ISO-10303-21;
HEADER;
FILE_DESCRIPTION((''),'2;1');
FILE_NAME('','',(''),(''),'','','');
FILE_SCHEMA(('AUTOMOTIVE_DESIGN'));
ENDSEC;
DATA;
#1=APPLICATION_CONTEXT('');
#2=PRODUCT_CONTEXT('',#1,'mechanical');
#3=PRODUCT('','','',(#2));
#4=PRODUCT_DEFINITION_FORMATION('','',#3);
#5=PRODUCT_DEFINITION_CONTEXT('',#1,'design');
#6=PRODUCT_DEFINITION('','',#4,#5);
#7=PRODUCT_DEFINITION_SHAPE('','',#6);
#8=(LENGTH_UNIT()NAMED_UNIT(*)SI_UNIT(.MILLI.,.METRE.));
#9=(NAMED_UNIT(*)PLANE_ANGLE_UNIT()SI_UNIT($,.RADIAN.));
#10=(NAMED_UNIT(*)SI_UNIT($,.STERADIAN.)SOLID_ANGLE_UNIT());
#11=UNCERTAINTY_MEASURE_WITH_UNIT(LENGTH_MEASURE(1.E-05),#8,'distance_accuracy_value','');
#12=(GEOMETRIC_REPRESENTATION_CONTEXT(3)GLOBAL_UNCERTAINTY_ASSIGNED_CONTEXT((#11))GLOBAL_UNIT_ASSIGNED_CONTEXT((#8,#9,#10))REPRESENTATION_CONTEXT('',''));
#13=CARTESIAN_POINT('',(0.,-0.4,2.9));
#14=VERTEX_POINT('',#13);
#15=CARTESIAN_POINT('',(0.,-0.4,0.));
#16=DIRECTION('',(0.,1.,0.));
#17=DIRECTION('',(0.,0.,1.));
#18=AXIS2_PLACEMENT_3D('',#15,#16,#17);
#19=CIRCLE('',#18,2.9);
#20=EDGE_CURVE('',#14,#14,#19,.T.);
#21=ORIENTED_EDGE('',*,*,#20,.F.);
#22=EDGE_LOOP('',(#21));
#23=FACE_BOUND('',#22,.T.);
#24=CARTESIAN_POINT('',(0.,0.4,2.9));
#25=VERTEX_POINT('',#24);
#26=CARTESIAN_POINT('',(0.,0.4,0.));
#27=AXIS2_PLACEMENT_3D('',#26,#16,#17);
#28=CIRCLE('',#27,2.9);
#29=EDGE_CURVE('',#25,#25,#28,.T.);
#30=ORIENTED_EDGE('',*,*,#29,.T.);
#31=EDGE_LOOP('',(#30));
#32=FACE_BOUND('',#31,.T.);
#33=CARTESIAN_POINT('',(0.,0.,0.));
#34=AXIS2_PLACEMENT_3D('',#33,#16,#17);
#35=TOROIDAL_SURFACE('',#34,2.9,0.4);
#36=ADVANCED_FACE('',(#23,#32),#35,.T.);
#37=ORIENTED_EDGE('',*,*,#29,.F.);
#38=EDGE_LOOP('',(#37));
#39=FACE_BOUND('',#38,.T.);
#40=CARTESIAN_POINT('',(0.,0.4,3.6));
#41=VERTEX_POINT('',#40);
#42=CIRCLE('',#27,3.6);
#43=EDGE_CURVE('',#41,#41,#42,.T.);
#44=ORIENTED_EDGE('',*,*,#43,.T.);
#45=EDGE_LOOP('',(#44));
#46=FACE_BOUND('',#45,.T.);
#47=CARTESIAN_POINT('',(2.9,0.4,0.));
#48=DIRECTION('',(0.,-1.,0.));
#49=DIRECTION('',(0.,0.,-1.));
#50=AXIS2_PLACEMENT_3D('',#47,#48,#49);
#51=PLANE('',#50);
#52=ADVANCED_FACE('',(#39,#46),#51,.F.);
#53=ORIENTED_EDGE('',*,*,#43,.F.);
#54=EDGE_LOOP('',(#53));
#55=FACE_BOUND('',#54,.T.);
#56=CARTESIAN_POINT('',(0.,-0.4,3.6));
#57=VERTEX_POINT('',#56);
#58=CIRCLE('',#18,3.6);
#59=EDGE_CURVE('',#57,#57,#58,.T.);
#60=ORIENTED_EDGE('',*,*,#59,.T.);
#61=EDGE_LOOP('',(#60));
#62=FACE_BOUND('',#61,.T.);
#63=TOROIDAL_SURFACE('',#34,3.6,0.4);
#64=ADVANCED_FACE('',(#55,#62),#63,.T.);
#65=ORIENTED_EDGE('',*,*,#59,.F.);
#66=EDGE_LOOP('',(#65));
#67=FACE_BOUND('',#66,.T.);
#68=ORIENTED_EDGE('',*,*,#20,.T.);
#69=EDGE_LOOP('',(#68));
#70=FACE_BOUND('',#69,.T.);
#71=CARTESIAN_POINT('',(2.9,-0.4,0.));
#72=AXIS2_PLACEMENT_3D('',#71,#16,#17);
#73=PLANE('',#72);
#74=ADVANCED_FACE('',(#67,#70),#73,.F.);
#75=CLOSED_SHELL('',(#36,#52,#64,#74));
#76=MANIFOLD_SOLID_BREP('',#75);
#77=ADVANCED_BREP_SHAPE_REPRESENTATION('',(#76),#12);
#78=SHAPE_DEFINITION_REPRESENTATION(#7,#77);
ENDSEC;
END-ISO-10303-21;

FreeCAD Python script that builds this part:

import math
import FreeCAD as App
import Part
import Sketcher

doc = App.newDocument("Part")
body = doc.addObject("PartDesign::Body", "Body")

# Sketch on XY plane
sketch1 = body.newObject("Sketcher::SketchObject", "Sketch")
sketch1.AttachmentSupport = (doc.getObject("XY_Plane"), [""])
sketch1.MapMode = "FlatFace"
sketch1.addGeometry(Part.LineSegment(App.Vector(3.6, 0.4, 0), App.Vector(2.9, 0.4, 0)), False)
sketch1.addGeometry(Part.ArcOfCircle(Part.Circle(App.Vector(2.9, 0, 0), App.Vector(0, 0, 1), 0.4), math.radians(90), math.radians(270)), False)
sketch1.addGeometry(Part.LineSegment(App.Vector(2.9, -0.4, 0), App.Vector(3.6, -0.4, 0)), False)
sketch1.addGeometry(Part.ArcOfCircle(Part.Circle(App.Vector(3.6, 0, 0), App.Vector(0, 0, 1), 0.4), math.radians(-90), math.radians(90)), False)
sketch1.addConstraint(Sketcher.Constraint("Tangent", 0, 2, 1, 1))
sketch1.addConstraint(Sketcher.Constraint("Tangent", 1, 2, 2, 1))
sketch1.addConstraint(Sketcher.Constraint("Tangent", 2, 2, 3, 1))
sketch1.addConstraint(Sketcher.Constraint("Tangent", 3, 2, 0, 1))
sketch1.addConstraint(Sketcher.Constraint("Horizontal", 0))
sketch1.addConstraint(Sketcher.Constraint("Horizontal", 2))
sketch1.addConstraint(Sketcher.Constraint("PointOnObject", 1, 3, -1))
sketch1.addConstraint(Sketcher.Constraint("Radius", 1, 0.4))
sketch1.addConstraint(Sketcher.Constraint("DistanceX", 0, 2, 0, 1, 0.7))
sketch1.addConstraint(Sketcher.Constraint("DistanceX", -1, 1, 1, 3, 2.9))
revolution = body.newObject("PartDesign::Revolution", "Revolution")
revolution.Profile = sketch1
revolution.ReferenceAxis = (sketch1, ["V_Axis"])
revolution.Angle = 360

doc.recompute()
